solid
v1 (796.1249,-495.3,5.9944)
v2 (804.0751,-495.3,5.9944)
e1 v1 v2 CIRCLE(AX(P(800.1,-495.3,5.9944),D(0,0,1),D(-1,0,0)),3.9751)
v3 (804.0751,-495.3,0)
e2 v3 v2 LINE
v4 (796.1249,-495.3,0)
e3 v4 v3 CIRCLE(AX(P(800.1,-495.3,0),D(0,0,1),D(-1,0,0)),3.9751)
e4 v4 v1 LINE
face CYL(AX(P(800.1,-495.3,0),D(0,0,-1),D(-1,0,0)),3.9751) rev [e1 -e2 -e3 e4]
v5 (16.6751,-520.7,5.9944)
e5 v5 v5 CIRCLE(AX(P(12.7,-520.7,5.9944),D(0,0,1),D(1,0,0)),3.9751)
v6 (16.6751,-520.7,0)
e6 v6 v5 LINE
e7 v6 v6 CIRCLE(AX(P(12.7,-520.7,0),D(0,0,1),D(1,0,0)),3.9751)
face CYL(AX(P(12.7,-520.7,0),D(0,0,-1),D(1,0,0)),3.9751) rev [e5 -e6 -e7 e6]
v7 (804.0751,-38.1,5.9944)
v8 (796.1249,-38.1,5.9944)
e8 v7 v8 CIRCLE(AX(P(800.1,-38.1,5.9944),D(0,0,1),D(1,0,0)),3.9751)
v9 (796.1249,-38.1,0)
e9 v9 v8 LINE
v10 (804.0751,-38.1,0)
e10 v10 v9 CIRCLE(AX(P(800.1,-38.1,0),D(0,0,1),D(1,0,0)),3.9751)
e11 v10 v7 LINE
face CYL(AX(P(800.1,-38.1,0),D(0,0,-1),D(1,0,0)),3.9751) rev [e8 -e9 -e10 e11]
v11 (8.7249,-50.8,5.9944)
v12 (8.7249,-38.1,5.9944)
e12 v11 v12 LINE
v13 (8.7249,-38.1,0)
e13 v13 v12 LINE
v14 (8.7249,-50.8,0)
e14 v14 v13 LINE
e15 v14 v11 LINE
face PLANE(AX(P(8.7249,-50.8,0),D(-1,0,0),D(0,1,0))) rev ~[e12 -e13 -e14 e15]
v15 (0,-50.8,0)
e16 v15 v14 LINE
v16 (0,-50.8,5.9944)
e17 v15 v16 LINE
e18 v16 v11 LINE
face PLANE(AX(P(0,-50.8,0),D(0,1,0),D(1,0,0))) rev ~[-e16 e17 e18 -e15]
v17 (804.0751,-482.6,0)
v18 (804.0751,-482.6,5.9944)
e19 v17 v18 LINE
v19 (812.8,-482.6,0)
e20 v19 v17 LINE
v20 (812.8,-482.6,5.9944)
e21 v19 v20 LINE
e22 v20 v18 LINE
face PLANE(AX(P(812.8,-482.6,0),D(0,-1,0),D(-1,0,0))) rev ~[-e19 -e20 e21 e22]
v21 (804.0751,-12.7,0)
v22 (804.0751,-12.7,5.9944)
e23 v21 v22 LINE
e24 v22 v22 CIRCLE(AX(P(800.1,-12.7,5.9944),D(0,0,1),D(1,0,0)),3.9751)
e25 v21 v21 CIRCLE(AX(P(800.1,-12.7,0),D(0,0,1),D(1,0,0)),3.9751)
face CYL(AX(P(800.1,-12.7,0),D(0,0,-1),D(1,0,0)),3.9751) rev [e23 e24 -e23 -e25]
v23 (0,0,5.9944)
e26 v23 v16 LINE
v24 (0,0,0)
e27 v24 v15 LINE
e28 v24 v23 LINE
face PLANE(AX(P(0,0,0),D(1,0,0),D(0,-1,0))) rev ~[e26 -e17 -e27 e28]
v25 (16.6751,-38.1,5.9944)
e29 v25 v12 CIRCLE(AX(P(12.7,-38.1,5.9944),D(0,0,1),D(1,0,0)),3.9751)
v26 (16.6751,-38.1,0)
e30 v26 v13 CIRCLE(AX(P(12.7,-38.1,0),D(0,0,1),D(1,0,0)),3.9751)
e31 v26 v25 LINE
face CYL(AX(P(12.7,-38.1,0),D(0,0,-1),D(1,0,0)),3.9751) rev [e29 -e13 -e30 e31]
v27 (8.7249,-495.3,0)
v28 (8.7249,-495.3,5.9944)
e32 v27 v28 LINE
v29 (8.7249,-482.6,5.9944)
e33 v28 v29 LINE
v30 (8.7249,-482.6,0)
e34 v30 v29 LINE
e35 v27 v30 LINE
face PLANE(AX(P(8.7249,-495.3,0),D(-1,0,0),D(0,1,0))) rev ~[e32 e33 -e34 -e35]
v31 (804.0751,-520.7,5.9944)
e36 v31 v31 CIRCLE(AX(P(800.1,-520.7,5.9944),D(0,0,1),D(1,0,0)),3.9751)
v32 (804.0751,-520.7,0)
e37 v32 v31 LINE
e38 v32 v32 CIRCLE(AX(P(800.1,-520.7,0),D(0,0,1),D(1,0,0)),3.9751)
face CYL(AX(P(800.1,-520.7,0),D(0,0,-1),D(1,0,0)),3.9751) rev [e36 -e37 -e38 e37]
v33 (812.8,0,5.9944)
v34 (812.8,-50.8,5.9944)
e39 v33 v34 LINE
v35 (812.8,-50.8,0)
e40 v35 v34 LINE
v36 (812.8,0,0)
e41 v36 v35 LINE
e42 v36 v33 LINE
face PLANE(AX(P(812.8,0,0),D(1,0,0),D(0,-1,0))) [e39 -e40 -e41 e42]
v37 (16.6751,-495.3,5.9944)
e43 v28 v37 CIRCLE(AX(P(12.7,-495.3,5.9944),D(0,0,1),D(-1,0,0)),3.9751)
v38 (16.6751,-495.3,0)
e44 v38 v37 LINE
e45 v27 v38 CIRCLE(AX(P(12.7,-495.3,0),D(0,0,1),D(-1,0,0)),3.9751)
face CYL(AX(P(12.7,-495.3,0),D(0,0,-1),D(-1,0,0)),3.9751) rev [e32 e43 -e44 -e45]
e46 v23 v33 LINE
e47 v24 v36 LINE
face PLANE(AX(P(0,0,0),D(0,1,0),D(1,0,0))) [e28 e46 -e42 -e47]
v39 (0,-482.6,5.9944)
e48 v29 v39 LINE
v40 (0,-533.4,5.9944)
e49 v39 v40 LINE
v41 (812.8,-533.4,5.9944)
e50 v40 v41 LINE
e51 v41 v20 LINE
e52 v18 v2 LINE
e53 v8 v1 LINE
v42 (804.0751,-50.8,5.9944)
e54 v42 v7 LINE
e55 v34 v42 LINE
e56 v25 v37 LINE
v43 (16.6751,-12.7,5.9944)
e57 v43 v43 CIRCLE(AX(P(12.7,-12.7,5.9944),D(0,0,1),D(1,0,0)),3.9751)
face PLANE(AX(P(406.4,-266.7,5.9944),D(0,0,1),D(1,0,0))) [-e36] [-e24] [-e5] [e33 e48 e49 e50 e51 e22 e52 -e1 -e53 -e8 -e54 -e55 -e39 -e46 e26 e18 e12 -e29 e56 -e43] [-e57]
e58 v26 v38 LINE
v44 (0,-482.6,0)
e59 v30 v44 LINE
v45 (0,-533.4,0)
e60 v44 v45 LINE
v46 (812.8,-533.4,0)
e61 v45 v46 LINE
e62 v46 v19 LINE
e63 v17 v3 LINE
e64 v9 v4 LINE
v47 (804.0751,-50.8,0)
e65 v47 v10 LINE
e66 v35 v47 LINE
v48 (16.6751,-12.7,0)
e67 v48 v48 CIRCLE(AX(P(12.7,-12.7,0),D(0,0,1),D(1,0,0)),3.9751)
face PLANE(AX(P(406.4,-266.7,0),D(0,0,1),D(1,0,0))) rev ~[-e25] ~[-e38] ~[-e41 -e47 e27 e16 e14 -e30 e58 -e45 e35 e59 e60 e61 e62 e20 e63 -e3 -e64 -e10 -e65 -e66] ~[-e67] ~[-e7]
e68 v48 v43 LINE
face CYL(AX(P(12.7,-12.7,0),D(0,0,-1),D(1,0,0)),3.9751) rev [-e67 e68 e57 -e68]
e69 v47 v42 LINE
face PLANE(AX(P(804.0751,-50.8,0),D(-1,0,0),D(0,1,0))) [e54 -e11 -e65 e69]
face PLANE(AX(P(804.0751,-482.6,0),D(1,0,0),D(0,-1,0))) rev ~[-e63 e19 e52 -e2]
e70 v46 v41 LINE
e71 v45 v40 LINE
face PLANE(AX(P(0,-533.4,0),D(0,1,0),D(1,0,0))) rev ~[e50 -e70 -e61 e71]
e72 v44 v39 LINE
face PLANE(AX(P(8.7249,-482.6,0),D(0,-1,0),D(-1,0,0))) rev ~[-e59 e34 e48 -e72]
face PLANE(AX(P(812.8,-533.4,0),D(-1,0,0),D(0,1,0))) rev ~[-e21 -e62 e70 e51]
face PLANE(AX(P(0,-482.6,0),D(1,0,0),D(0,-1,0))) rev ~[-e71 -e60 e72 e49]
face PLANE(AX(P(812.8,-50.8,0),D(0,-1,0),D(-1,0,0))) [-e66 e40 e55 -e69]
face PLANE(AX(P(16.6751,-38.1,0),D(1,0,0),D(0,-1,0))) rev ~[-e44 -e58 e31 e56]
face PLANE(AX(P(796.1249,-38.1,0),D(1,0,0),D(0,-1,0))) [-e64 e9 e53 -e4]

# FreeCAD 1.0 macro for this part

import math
import FreeCAD as App
import Part
import Sketcher
Q = App.Units.Quantity

doc = App.newDocument("Part")
body = doc.addObject("PartDesign::Body", "Body")

# Sketch on XY plane
sketch1 = doc.addObject("Sketcher::SketchObject", "Sketch")
body.addObject(sketch1)
sketch1.AttachmentSupport = (doc.XY_Plane, [""])
sketch1.MapMode = "FlatFace"
sketch1.addGeometry(Part.LineSegment(App.Vector(0, 0, 0), App.Vector(0, -50.8, 0)), False)
sketch1.addGeometry(Part.LineSegment(App.Vector(0, -50.8, 0), App.Vector(8.7, -50.8, 0)), False)
sketch1.addGeometry(Part.LineSegment(App.Vector(8.7, -50.8, 0), App.Vector(8.7, -38.1, 0)), False)
sketch1.addGeometry(Part.ArcOfCircle(Part.Circle(App.Vector(12.7, -38.1, 0), App.Vector(0, 0, 1), 4), math.radians(0), math.radians(180)), False)
sketch1.addGeometry(Part.LineSegment(App.Vector(16.7, -38.1, 0), App.Vector(16.7, -495.3, 0)), False)
sketch1.addGeometry(Part.ArcOfCircle(Part.Circle(App.Vector(12.7, -495.3, 0), App.Vector(0, 0, 1), 4), math.radians(180), math.radians(360)), False)
sketch1.addGeometry(Part.LineSegment(App.Vector(8.7, -495.3, 0), App.Vector(8.7, -482.6, 0)), False)
sketch1.addGeometry(Part.LineSegment(App.Vector(8.7, -482.6, 0), App.Vector(0, -482.6, 0)), False)
sketch1.addGeometry(Part.LineSegment(App.Vector(0, -482.6, 0), App.Vector(0, -533.4, 0)), False)
sketch1.addGeometry(Part.LineSegment(App.Vector(0, -533.4, 0), App.Vector(812.8, -533.4, 0)), False)
sketch1.addGeometry(Part.LineSegment(App.Vector(812.8, -533.4, 0), App.Vector(812.8, -482.6, 0)), False)
sketch1.addGeometry(Part.LineSegment(App.Vector(812.8, -482.6, 0), App.Vector(804.1, -482.6, 0)), False)
sketch1.addGeometry(Part.LineSegment(App.Vector(804.1, -482.6, 0), App.Vector(804.1, -495.3, 0)), False)
sketch1.addGeometry(Part.ArcOfCircle(Part.Circle(App.Vector(800.1, -495.3, 0), App.Vector(0, 0, 1), 4), math.radians(180), math.radians(360)), False)
sketch1.addGeometry(Part.LineSegment(App.Vector(796.1, -495.3, 0), App.Vector(796.1, -38.1, 0)), False)
sketch1.addGeometry(Part.ArcOfCircle(Part.Circle(App.Vector(800.1, -38.1, 0), App.Vector(0, 0, 1), 4), math.radians(0), math.radians(180)), False)
sketch1.addGeometry(Part.LineSegment(App.Vector(804.1, -38.1, 0), App.Vector(804.1, -50.8, 0)), False)
sketch1.addGeometry(Part.LineSegment(App.Vector(804.1, -50.8, 0), App.Vector(812.8, -50.8, 0)), False)
sketch1.addGeometry(Part.LineSegment(App.Vector(812.8, -50.8, 0), App.Vector(812.8, 0, 0)), False)
sketch1.addGeometry(Part.LineSegment(App.Vector(812.8, 0, 0), App.Vector(0, 0, 0)), False)
sketch1.addGeometry(Part.Circle(App.Vector(12.7, -520.7, 0), App.Vector(0, 0, 1), 4), False)
sketch1.addGeometry(Part.Circle(App.Vector(800.1, -520.7, 0), App.Vector(0, 0, 1), 4), False)
sketch1.addGeometry(Part.Circle(App.Vector(12.7, -12.7, 0), App.Vector(0, 0, 1), 4), False)
sketch1.addGeometry(Part.Circle(App.Vector(800.1, -12.7, 0), App.Vector(0, 0, 1), 4), False)
sketch1.addConstraint(Sketcher.Constraint("Coincident", 0, 2, 1, 1))
sketch1.addConstraint(Sketcher.Constraint("Coincident", 1, 2, 2, 1))
sketch1.addConstraint(Sketcher.Constraint("Tangent", 2, 2, 3, 2))
sketch1.addConstraint(Sketcher.Constraint("Tangent", 3, 1, 4, 1))
sketch1.addConstraint(Sketcher.Constraint("Tangent", 4, 2, 5, 2))
sketch1.addConstraint(Sketcher.Constraint("Tangent", 5, 1, 6, 1))
sketch1.addConstraint(Sketcher.Constraint("Coincident", 6, 2, 7, 1))
sketch1.addConstraint(Sketcher.Constraint("Coincident", 7, 2, 8, 1))
sketch1.addConstraint(Sketcher.Constraint("Coincident", 8, 2, 9, 1))
sketch1.addConstraint(Sketcher.Constraint("Coincident", 9, 2, 10, 1))
sketch1.addConstraint(Sketcher.Constraint("Coincident", 10, 2, 11, 1))
sketch1.addConstraint(Sketcher.Constraint("Coincident", 11, 2, 12, 1))
sketch1.addConstraint(Sketcher.Constraint("Tangent", 12, 2, 13, 2))
sketch1.addConstraint(Sketcher.Constraint("Tangent", 13, 1, 14, 1))
sketch1.addConstraint(Sketcher.Constraint("Tangent", 14, 2, 15, 2))
sketch1.addConstraint(Sketcher.Constraint("Tangent", 15, 1, 16, 1))
sketch1.addConstraint(Sketcher.Constraint("Coincident", 16, 2, 17, 1))
sketch1.addConstraint(Sketcher.Constraint("Coincident", 17, 2, 18, 1))
sketch1.addConstraint(Sketcher.Constraint("Coincident", 18, 2, 19, 1))
sketch1.addConstraint(Sketcher.Constraint("Coincident", 19, 2, 0, 1))
sketch1.addConstraint(Sketcher.Constraint("Vertical", 0))
sketch1.addConstraint(Sketcher.Constraint("Horizontal", 1))
sketch1.addConstraint(Sketcher.Constraint("Vertical", 2))
sketch1.addConstraint(Sketcher.Constraint("Vertical", 4))
sketch1.addConstraint(Sketcher.Constraint("Vertical", 6))
sketch1.addConstraint(Sketcher.Constraint("Horizontal", 7))
sketch1.addConstraint(Sketcher.Constraint("Vertical", 8))
sketch1.addConstraint(Sketcher.Constraint("Horizontal", 9))
sketch1.addConstraint(Sketcher.Constraint("Vertical", 10))
sketch1.addConstraint(Sketcher.Constraint("Horizontal", 11))
sketch1.addConstraint(Sketcher.Constraint("Vertical", 12))
sketch1.addConstraint(Sketcher.Constraint("Vertical", 14))
sketch1.addConstraint(Sketcher.Constraint("Vertical", 16))
sketch1.addConstraint(Sketcher.Constraint("Horizontal", 17))
sketch1.addConstraint(Sketcher.Constraint("Vertical", 18))
sketch1.addConstraint(Sketcher.Constraint("Horizontal", 19))
sketch1.addConstraint(Sketcher.Constraint("Coincident", 19, 2, -1, 1))
sketch1.addConstraint(Sketcher.Constraint("Equal", 3, 5))
sketch1.addConstraint(Sketcher.Constraint("Equal", 5, 13))
sketch1.addConstraint(Sketcher.Constraint("Equal", 13, 15))
sketch1.addConstraint(Sketcher.Constraint("Equal", 15, 20))
sketch1.addConstraint(Sketcher.Constraint("Equal", 20, 21))
sketch1.addConstraint(Sketcher.Constraint("Equal", 21, 22))
sketch1.addConstraint(Sketcher.Constraint("Equal", 22, 23))
sketch1.addConstraint(Sketcher.Constraint("PointOnObject", 7, 2, -2))
sketch1.addConstraint(Sketcher.Constraint("Horizontal", 5, 3, 13, 3))
sketch1.addConstraint(Sketcher.Constraint("Horizontal", 3, 3, 15, 3))
sketch1.addConstraint(Sketcher.Constraint("Horizontal", 20, 3, 21, 3))
sketch1.addConstraint(Sketcher.Constraint("Horizontal", 22, 3, 23, 3))
sketch1.addConstraint(Sketcher.Constraint("Horizontal", 7, 2, 10, 2))
sketch1.addConstraint(Sketcher.Constraint("Horizontal", 1, 2, 16, 2))
sketch1.addConstraint(Sketcher.Constraint("Vertical", 5, 3, 20, 3))
sketch1.addConstraint(Sketcher.Constraint("Vertical", 15, 3, 21, 3))
sketch1.addConstraint(Sketcher.Constraint("Vertical", 20, 3, 22, 3))
sketch1.addConstraint(Sketcher.Constraint("Vertical", 21, 3, 23, 3))
sketch1.addConstraint(Sketcher.Constraint("Vertical", 10, 2, 17, 2))
sketch1.addConstraint(Sketcher.Constraint("Equal", 7, 11))
sketch1.addConstraint(Sketcher.Constraint("Equal", 2, 6))
sketch1.addConstraint(Sketcher.Constraint("Equal", 0, 8))
sketch1.addConstraint(Sketcher.Constraint("DistanceX", 9, 1, 9, 2, Q("32 in")))
sketch1.addConstraint(Sketcher.Constraint("DistanceY", 0, 2, 0, 1, Q("2 in")))
sketch1.addConstraint(Sketcher.Constraint("DistanceY", 4, 2, 4, 1, Q("18 in")))
sketch1.addConstraint(Sketcher.Constraint("Diameter", 20, Q("0.313 in")))
sketch1.addConstraint(Sketcher.Constraint("DistanceY", 2, 1, 2, 2, Q("0.5 in")))
sketch1.addConstraint(Sketcher.Constraint("DistanceX", 5, 3, 13, 3, Q("31 in")))
sketch1.addConstraint(Sketcher.Constraint("DistanceY", 20, 3, 5, 3, Q("1 in")))
sketch1.addConstraint(Sketcher.Constraint("DistanceY", 3, 3, 22, 3, Q("1 in")))
pad1 = doc.addObject("PartDesign::Pad", "Pad")
body.addObject(pad1)
pad1.Profile = sketch1
pad1.Length = Q("0.236 in")

doc.recompute()
